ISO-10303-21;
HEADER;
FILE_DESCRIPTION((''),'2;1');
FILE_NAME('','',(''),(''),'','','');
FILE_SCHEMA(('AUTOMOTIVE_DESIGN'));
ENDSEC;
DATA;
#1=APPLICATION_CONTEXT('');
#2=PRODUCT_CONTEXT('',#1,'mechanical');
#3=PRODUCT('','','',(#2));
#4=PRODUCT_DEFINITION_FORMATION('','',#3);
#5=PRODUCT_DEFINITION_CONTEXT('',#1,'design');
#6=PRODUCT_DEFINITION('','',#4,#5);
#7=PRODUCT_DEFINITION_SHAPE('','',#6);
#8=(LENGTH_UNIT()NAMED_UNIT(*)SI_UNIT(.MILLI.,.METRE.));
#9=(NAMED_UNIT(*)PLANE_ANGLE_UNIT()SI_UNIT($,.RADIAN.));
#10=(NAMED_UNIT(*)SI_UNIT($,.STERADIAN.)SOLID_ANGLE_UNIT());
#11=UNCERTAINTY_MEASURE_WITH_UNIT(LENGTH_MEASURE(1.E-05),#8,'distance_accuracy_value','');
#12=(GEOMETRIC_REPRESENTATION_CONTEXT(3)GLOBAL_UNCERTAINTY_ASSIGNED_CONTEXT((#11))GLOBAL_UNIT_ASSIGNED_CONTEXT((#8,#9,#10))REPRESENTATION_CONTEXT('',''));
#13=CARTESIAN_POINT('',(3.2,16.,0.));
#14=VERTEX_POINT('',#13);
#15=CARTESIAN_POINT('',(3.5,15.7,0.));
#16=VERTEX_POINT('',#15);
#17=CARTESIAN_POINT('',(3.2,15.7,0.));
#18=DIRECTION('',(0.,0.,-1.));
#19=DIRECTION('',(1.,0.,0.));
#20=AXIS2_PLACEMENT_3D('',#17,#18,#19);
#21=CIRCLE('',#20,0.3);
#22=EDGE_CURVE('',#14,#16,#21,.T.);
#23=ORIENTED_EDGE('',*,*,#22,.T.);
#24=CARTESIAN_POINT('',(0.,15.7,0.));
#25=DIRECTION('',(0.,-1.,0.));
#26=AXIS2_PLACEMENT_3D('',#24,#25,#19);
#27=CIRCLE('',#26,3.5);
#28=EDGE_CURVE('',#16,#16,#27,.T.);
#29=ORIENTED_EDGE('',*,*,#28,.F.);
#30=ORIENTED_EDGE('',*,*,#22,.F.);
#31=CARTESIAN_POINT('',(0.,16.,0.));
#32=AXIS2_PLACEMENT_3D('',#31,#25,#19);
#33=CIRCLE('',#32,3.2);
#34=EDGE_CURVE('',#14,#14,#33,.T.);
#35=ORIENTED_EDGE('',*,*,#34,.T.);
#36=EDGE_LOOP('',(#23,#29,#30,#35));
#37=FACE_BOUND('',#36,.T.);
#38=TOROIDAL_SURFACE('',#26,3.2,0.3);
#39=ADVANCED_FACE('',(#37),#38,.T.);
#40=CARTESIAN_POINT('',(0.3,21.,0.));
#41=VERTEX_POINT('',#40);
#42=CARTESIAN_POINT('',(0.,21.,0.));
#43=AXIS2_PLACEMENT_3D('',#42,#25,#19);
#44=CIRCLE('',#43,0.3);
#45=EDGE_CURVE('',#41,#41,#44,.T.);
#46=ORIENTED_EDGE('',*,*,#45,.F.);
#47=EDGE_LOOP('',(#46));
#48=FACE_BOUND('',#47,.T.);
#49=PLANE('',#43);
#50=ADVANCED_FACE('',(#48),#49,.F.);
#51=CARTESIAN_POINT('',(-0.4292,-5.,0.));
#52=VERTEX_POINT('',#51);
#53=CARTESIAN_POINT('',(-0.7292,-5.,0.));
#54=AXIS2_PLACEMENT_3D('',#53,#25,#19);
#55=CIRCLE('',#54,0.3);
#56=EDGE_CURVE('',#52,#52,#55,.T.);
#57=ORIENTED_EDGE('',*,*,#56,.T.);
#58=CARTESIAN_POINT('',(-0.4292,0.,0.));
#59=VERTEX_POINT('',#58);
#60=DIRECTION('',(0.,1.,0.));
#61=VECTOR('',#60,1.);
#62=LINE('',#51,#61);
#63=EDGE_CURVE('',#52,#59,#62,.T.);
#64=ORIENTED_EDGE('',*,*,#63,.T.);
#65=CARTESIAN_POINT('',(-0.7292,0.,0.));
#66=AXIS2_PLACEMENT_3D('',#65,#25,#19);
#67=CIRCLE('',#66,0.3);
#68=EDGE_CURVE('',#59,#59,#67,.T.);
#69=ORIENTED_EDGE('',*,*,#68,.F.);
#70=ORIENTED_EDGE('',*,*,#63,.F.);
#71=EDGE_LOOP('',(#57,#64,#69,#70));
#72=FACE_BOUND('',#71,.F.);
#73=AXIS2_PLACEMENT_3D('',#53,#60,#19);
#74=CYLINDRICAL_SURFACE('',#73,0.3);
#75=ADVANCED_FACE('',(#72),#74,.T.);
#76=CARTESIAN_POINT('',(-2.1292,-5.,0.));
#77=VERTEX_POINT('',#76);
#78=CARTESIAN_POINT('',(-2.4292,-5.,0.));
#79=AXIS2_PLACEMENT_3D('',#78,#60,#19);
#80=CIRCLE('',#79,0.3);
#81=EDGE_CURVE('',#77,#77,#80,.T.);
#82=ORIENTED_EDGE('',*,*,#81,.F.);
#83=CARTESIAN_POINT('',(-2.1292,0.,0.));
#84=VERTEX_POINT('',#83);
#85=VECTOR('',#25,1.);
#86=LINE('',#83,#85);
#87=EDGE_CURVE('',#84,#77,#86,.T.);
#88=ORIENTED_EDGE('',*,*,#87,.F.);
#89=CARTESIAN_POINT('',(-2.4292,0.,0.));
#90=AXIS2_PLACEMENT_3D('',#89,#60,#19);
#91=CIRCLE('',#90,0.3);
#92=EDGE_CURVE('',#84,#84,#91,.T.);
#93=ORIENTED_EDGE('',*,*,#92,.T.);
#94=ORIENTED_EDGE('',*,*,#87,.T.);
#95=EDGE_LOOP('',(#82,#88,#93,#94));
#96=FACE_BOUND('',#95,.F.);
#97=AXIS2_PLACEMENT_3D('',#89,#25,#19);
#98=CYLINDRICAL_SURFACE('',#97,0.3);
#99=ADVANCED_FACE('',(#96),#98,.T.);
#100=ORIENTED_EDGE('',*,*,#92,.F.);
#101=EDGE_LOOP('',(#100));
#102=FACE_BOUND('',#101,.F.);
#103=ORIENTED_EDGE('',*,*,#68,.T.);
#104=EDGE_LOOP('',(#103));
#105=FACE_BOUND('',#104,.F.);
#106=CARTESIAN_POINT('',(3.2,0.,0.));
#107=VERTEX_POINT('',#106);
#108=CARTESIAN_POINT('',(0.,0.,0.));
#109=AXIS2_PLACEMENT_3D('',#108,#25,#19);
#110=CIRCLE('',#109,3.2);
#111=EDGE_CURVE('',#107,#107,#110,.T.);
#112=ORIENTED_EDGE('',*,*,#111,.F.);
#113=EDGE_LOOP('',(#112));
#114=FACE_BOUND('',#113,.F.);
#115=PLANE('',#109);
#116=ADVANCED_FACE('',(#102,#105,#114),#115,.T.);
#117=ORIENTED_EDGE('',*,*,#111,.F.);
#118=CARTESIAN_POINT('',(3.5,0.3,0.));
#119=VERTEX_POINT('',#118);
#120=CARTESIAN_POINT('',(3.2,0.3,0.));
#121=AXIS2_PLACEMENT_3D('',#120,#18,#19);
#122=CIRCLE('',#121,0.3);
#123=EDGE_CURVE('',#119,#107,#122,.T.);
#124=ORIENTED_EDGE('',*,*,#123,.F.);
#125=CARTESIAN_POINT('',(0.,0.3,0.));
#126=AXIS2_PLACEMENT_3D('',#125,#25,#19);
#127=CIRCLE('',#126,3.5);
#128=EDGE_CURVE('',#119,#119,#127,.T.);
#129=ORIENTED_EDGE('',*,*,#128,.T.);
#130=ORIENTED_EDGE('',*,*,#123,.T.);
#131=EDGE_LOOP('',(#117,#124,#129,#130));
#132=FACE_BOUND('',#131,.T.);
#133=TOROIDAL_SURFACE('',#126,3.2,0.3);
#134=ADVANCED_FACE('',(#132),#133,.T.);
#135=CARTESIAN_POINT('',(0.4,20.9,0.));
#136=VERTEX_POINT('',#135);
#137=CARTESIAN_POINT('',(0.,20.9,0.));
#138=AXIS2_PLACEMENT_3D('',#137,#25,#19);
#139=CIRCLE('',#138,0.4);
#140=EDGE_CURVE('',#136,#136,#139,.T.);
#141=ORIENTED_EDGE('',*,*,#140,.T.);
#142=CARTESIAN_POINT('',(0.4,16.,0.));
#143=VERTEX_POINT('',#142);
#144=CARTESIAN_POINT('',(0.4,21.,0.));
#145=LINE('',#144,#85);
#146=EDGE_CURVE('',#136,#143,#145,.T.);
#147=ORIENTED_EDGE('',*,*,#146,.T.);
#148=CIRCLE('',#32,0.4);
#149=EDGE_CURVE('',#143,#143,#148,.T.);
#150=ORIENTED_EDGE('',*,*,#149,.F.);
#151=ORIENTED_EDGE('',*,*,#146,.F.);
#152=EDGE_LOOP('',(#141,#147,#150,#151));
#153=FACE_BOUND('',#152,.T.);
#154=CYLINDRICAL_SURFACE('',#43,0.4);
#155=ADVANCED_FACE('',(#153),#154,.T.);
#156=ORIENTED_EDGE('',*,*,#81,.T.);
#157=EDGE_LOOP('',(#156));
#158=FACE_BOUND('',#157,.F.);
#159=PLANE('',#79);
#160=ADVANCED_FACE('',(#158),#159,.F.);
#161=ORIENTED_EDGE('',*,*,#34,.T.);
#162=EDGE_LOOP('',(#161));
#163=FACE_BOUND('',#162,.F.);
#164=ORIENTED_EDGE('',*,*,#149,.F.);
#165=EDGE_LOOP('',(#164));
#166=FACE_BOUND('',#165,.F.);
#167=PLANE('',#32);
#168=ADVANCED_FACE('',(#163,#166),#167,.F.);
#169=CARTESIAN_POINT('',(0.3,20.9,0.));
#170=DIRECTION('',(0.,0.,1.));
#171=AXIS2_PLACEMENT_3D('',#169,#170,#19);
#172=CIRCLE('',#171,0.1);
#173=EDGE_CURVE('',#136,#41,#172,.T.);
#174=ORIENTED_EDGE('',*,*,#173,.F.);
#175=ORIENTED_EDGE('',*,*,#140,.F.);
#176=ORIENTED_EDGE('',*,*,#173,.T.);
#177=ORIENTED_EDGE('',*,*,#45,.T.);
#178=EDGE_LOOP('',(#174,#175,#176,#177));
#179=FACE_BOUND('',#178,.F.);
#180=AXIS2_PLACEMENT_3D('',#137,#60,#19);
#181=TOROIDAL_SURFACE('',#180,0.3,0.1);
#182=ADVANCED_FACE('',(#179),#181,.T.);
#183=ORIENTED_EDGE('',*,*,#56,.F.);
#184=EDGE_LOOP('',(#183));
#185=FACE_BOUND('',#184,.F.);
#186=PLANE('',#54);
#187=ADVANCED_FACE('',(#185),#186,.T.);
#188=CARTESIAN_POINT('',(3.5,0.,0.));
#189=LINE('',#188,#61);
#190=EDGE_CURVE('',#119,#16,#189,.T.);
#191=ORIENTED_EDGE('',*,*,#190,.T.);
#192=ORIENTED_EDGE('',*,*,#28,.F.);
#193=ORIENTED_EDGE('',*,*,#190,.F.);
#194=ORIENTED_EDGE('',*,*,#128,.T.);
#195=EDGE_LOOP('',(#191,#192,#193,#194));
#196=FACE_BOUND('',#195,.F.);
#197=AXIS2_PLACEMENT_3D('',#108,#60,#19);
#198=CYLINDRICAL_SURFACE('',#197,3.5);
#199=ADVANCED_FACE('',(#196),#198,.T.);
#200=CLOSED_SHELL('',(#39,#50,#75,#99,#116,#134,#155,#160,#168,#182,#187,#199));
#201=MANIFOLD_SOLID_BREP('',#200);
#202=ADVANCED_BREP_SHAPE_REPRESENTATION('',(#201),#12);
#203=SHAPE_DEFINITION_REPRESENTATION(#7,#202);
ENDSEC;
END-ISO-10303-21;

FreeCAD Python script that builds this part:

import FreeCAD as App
import Part
import Sketcher


def edges_at(feature, points):
    """Names of the edges that pass closest to the given points."""
    edges = feature.Shape.Edges
    near = lambda p: min(range(len(edges)), key=lambda i: edges[i].distToShape(Part.Vertex(*p))[0])
    return sorted({f"Edge{near(p) + 1}" for p in points})


def add_polygon(sketch, points):
    """Adds a closed chain of lines whose ends are joined by coincident constraints."""
    first, n = sketch.GeometryCount, len(points)
    for a, b in zip(points, points[1:] + points[:1]):
        sketch.addGeometry(Part.LineSegment(App.Vector(*a, 0), App.Vector(*b, 0)), False)
    for i in range(n):
        sketch.addConstraint(Sketcher.Constraint("Coincident", first + i, 2, first + (i + 1) % n, 1))

doc = App.newDocument("Part")
body = doc.addObject("PartDesign::Body", "Body")

# Sketch on XY plane
sketch1 = doc.addObject("Sketcher::SketchObject", "Sketch")
body.addObject(sketch1)
sketch1.AttachmentSupport = (doc.XY_Plane, [""])
sketch1.MapMode = "FlatFace"
add_polygon(sketch1, [(0, 21), (-0.4, 21), (-0.4, 16), (-3.5, 16), (-3.5, 0), (0, 0)])  # lines 0-5
sketch1.addConstraint([
    Sketcher.Constraint("Horizontal", 0),
    Sketcher.Constraint("Vertical", 1),
    Sketcher.Constraint("Horizontal", 2),
    Sketcher.Constraint("Vertical", 3),
    Sketcher.Constraint("Horizontal", 4),
    Sketcher.Constraint("Vertical", 5),
    Sketcher.Constraint("Coincident", 4, 2, -1, 1),
    Sketcher.Constraint("DistanceY", 1, 2, 1, 1, 5.0),
    Sketcher.Constraint("DistanceY", 3, 2, 3, 1, 16.0),
    Sketcher.Constraint("DistanceX", 0, 2, 0, 1, 0.4),
    Sketcher.Constraint("DistanceX", 4, 1, 4, 2, 3.5),
])
revolution = doc.addObject("PartDesign::Revolution", "Revolution")
body.addObject(revolution)
revolution.Profile = sketch1
revolution.ReferenceAxis = (sketch1, ["V_Axis"])
revolution.Angle = 360

# Sketch on XY plane
sketch2 = doc.addObject("Sketcher::SketchObject", "Sketch001")
body.addObject(sketch2)
sketch2.AttachmentSupport = (doc.XY_Plane, [""])
sketch2.MapMode = "FlatFace"
add_polygon(sketch2, [(-0.73, -5), (-0.73, 0), (-1.03, 0), (-1.03, -5)])  # lines 0-3
sketch2.addGeometry(Part.LineSegment(App.Vector(-0.73, 0, 0), App.Vector(-0.73, -5, 0)), True)  # axis
sketch2.addConstraint([
    Sketcher.Constraint("Vertical", 0),
    Sketcher.Constraint("Horizontal", 1),
    Sketcher.Constraint("Vertical", 2),
    Sketcher.Constraint("Horizontal", 3),
    Sketcher.Constraint("Vertical", 4),
    Sketcher.Constraint("Coincident", 4, 1, 0, 2),
    Sketcher.Constraint("PointOnObject", 0, 2, -1),
    Sketcher.Constraint("Horizontal", 2, 2, 4, 2),
    Sketcher.Constraint("DistanceY", 0, 1, 0, 2, 5.0),
    Sketcher.Constraint("DistanceX", 1, 2, 1, 1, 0.3),
    Sketcher.Constraint("DistanceX", 0, 2, -1, 1, 0.7292),
])
revolution2 = doc.addObject("PartDesign::Revolution", "Revolution001")
body.addObject(revolution2)
revolution2.Profile = sketch2
revolution2.ReferenceAxis = (sketch2, ["Axis0"])
revolution2.Angle = 360

# Sketch on XY plane
sketch3 = doc.addObject("Sketcher::SketchObject", "Sketch002")
body.addObject(sketch3)
sketch3.AttachmentSupport = (doc.XY_Plane, [""])
sketch3.MapMode = "FlatFace"
add_polygon(sketch3, [(-2.43, -5), (-2.43, 0), (-2.73, 0), (-2.73, -5)])  # lines 0-3
sketch3.addGeometry(Part.LineSegment(App.Vector(-2.43, -5, 0), App.Vector(-2.43, 0, 0)), True)  # axis
sketch3.addConstraint([
    Sketcher.Constraint("Vertical", 0),
    Sketcher.Constraint("Horizontal", 1),
    Sketcher.Constraint("Vertical", 2),
    Sketcher.Constraint("Horizontal", 3),
    Sketcher.Constraint("Vertical", 4),
    Sketcher.Constraint("Coincident", 4, 1, 3, 2),
    Sketcher.Constraint("PointOnObject", 0, 2, -1),
    Sketcher.Constraint("PointOnObject", 4, 2, -1),
    Sketcher.Constraint("DistanceY", 0, 1, 0, 2, 5.0),
    Sketcher.Constraint("DistanceX", 1, 2, 1, 1, 0.3),
    Sketcher.Constraint("DistanceX", 0, 2, -1, 1, 2.4292),
])
revolution3 = doc.addObject("PartDesign::Revolution", "Revolution002")
body.addObject(revolution3)
revolution3.Profile = sketch3
revolution3.ReferenceAxis = (sketch3, ["Axis0"])
revolution3.Angle = 360
doc.recompute()

fillet = doc.addObject("PartDesign::Fillet", "Fillet")
body.addObject(fillet)
fillet.Base = (revolution3, edges_at(revolution3, [(-0.4, 21, 0)]))
fillet.Radius = 0.1
doc.recompute()

fillet2 = doc.addObject("PartDesign::Fillet", "Fillet001")
body.addObject(fillet2)
fillet2.Base = (fillet, edges_at(fillet, [(-3.5, 16, 0), (-3.5, 0, 0)]))
fillet2.Radius = 0.3

doc.recompute()
